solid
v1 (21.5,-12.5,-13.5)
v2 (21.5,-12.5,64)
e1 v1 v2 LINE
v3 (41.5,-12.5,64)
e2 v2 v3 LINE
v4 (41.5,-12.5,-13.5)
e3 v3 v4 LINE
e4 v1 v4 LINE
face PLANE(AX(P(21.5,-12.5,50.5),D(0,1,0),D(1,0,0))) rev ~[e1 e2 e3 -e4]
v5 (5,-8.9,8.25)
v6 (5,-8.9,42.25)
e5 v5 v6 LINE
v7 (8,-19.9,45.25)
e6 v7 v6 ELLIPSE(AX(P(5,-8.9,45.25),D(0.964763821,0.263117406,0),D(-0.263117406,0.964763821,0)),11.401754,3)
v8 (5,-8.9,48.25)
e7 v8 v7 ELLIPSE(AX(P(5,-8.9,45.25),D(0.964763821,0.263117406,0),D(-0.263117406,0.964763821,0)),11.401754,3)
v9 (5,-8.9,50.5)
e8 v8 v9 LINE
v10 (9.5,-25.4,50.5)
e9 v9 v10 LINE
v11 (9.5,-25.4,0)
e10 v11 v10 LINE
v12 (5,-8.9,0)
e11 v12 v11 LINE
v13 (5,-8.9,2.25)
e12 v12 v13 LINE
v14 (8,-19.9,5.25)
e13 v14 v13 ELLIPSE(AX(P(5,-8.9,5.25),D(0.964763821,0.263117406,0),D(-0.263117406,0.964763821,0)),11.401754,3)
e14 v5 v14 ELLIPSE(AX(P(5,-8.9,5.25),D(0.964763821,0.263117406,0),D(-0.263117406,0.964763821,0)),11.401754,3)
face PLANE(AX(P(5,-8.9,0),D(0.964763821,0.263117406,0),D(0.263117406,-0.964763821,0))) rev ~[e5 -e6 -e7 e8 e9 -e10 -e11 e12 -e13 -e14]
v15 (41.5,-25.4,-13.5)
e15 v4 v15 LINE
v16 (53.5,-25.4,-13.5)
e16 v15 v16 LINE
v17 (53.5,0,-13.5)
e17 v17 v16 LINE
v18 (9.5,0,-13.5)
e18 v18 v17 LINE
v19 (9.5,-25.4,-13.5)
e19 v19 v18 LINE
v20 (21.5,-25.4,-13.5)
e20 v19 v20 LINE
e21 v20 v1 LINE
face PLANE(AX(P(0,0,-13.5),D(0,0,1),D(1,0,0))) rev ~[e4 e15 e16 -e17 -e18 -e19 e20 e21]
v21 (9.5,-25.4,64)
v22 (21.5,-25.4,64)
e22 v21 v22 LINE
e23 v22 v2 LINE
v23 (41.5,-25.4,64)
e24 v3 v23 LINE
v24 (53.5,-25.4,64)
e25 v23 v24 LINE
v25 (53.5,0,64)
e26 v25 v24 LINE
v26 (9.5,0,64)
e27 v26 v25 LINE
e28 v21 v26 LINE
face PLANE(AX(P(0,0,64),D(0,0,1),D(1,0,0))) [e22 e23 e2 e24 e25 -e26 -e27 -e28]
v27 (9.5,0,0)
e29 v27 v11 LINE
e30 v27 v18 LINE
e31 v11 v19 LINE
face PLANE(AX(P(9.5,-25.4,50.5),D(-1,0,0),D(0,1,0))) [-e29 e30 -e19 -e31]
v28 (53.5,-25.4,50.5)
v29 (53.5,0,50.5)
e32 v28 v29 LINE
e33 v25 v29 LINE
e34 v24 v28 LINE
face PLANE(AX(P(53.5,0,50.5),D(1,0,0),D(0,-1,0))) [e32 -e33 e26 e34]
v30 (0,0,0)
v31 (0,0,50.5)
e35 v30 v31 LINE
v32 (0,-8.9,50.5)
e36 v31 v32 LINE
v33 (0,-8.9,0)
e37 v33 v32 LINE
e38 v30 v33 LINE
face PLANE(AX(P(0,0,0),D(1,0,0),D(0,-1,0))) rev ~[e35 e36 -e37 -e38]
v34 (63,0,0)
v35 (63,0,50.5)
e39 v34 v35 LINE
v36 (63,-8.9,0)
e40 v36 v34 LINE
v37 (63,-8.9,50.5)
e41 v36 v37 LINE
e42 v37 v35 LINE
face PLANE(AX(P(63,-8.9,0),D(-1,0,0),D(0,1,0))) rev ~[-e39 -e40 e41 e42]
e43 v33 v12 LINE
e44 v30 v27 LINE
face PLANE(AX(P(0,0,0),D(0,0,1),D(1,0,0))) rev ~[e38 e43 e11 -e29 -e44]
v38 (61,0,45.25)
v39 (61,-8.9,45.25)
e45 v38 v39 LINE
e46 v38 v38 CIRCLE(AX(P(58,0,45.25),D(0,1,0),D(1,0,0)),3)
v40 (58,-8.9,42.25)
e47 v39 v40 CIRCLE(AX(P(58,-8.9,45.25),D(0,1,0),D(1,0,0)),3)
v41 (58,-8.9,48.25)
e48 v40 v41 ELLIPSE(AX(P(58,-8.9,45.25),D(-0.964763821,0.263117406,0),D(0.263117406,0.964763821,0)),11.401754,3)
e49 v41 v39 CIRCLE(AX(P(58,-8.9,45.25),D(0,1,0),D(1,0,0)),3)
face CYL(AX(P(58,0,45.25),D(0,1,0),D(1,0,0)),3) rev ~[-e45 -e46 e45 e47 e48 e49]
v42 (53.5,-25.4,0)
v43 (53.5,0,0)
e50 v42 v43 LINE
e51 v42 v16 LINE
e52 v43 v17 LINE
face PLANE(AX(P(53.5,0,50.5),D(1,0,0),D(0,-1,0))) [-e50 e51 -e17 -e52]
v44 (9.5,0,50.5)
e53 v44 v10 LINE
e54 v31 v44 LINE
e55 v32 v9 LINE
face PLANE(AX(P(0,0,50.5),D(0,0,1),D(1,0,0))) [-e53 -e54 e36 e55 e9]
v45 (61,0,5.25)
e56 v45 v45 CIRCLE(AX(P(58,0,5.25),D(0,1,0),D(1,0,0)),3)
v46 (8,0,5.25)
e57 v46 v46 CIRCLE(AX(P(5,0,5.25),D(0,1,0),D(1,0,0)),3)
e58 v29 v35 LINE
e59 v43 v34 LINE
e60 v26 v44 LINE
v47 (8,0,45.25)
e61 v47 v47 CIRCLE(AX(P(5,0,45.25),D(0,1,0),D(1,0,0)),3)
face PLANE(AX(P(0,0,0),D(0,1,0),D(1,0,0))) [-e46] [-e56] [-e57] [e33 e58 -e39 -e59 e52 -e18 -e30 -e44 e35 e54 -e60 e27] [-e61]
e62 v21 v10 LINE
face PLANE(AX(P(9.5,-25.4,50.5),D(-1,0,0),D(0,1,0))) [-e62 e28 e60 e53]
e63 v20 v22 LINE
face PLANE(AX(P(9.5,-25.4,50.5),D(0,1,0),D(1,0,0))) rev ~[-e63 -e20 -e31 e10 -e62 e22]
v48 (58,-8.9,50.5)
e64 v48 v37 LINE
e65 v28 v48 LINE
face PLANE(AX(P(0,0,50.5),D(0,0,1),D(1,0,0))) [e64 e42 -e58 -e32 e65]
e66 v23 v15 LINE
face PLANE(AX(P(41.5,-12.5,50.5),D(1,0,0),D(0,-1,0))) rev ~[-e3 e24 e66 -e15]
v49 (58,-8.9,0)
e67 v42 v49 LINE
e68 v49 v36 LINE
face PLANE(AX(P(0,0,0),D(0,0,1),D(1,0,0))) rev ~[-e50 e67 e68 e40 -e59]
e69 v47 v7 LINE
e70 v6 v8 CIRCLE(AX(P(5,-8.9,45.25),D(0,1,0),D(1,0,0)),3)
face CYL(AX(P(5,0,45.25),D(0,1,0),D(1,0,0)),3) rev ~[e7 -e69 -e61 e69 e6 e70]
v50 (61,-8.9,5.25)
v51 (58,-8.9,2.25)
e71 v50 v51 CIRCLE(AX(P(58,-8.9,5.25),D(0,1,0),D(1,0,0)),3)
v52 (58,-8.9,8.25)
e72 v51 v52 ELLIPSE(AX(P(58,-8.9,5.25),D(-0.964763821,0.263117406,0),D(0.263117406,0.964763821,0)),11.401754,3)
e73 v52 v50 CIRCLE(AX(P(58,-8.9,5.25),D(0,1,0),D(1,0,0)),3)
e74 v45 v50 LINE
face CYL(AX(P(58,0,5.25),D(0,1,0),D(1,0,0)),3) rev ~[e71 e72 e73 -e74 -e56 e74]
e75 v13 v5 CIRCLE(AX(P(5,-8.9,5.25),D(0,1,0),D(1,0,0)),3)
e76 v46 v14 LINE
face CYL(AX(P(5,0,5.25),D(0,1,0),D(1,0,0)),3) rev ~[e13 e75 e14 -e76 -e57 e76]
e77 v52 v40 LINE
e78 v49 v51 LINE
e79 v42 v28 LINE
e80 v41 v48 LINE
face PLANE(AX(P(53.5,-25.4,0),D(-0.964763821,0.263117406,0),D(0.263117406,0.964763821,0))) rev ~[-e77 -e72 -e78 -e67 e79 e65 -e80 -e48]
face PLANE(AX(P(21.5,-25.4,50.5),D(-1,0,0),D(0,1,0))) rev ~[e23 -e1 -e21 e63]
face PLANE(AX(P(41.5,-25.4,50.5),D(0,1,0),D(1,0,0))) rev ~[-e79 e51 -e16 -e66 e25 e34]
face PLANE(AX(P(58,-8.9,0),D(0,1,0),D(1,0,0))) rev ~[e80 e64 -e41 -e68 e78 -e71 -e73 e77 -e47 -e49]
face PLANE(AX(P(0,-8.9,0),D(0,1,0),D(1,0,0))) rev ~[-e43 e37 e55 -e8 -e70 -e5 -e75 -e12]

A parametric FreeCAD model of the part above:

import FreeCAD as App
import Part
import Sketcher

doc = App.newDocument("Part")
body = doc.addObject("PartDesign::Body", "Body")

# Sketch on XY plane
sketch1 = doc.addObject("Sketcher::SketchObject", "Sketch")
body.addObject(sketch1)
sketch1.AttachmentSupport = (doc.XY_Plane, [""])
sketch1.MapMode = "FlatFace"
sketch1.addGeometry([
    Part.LineSegment(App.Vector(63, 0, 0), App.Vector(0, 0, 0)),  # 0
    Part.LineSegment(App.Vector(0, 0, 0), App.Vector(0, -8.9, 0)),  # 1
    Part.LineSegment(App.Vector(0, -8.9, 0), App.Vector(5, -8.9, 0)),  # 2
    Part.LineSegment(App.Vector(5, -8.9, 0), App.Vector(9.5, -25.4, 0)),  # 3
    Part.LineSegment(App.Vector(9.5, -25.4, 0), App.Vector(21.5, -25.4, 0)),  # 4
    Part.LineSegment(App.Vector(21.5, -25.4, 0), App.Vector(21.5, -12.5, 0)),  # 5
    Part.LineSegment(App.Vector(21.5, -12.5, 0), App.Vector(41.5, -12.5, 0)),  # 6
    Part.LineSegment(App.Vector(41.5, -12.5, 0), App.Vector(41.5, -25.4, 0)),  # 7
    Part.LineSegment(App.Vector(41.5, -25.4, 0), App.Vector(53.5, -25.4, 0)),  # 8
    Part.LineSegment(App.Vector(53.5, -25.4, 0), App.Vector(58, -8.9, 0)),  # 9
    Part.LineSegment(App.Vector(58, -8.9, 0), App.Vector(63, -8.9, 0)),  # 10
    Part.LineSegment(App.Vector(63, -8.9, 0), App.Vector(63, 0, 0)),  # 11
], False)
sketch1.addConstraint([
    Sketcher.Constraint("Coincident", 0, 2, 1, 1),
    Sketcher.Constraint("Coincident", 1, 2, 2, 1),
    Sketcher.Constraint("Coincident", 2, 2, 3, 1),
    Sketcher.Constraint("Coincident", 3, 2, 4, 1),
    Sketcher.Constraint("Coincident", 4, 2, 5, 1),
    Sketcher.Constraint("Coincident", 5, 2, 6, 1),
    Sketcher.Constraint("Coincident", 6, 2, 7, 1),
    Sketcher.Constraint("Coincident", 7, 2, 8, 1),
    Sketcher.Constraint("Coincident", 8, 2, 9, 1),
    Sketcher.Constraint("Coincident", 9, 2, 10, 1),
    Sketcher.Constraint("Coincident", 10, 2, 11, 1),
    Sketcher.Constraint("Coincident", 11, 2, 0, 1),
    Sketcher.Constraint("Horizontal", 0),
    Sketcher.Constraint("Vertical", 1),
    Sketcher.Constraint("Horizontal", 2),
    Sketcher.Constraint("Horizontal", 4),
    Sketcher.Constraint("Vertical", 5),
    Sketcher.Constraint("Horizontal", 6),
    Sketcher.Constraint("Vertical", 7),
    Sketcher.Constraint("Horizontal", 8),
    Sketcher.Constraint("Horizontal", 10),
    Sketcher.Constraint("Vertical", 11),
    Sketcher.Constraint("Coincident", 0, 2, -1, 1),
    Sketcher.Constraint("Horizontal", 4, 2, 7, 2),
    Sketcher.Constraint("Horizontal", 2, 2, 9, 2),
    Sketcher.Constraint("Equal", 4, 8),
    Sketcher.Constraint("Equal", 2, 10),
    Sketcher.Constraint("Equal", 3, 9),
    Sketcher.Constraint("DistanceX", 0, 2, 0, 1, 63.0),
    Sketcher.Constraint("DistanceX", 2, 1, 2, 2, 5.0),
    Sketcher.Constraint("DistanceX", 4, 1, 4, 2, 12.0),
    Sketcher.Constraint("DistanceY", 1, 2, 1, 1, 8.9),
    Sketcher.Constraint("DistanceY", 5, 1, 5, 2, 12.9),
    Sketcher.Constraint("DistanceY", 3, 2, -1, 1, 25.4),
    Sketcher.Constraint("DistanceX", -1, 1, 4, 2, 21.5),
])
pad1 = doc.addObject("PartDesign::Pad", "Pad")
body.addObject(pad1)
pad1.Profile = sketch1
pad1.Length = 50.5

# Sketch on XY plane
sketch2 = doc.addObject("Sketcher::SketchObject", "Sketch001")
body.addObject(sketch2)
sketch2.AttachmentSupport = (doc.XY_Plane, [""])
sketch2.MapMode = "FlatFace"
sketch2.AttachmentOffset = App.Placement(App.Vector(0, 0, 50.5), App.Rotation())
sketch2.addGeometry([
    Part.LineSegment(App.Vector(9.5, -25.4, 0), App.Vector(21.5, -25.4, 0)),  # 0
    Part.LineSegment(App.Vector(21.5, -25.4, 0), App.Vector(21.5, -12.5, 0)),  # 1
    Part.LineSegment(App.Vector(21.5, -12.5, 0), App.Vector(41.5, -12.5, 0)),  # 2
    Part.LineSegment(App.Vector(41.5, -12.5, 0), App.Vector(41.5, -25.4, 0)),  # 3
    Part.LineSegment(App.Vector(41.5, -25.4, 0), App.Vector(53.5, -25.4, 0)),  # 4
    Part.LineSegment(App.Vector(53.5, -25.4, 0), App.Vector(53.5, 0, 0)),  # 5
    Part.LineSegment(App.Vector(53.5, 0, 0), App.Vector(9.5, 0, 0)),  # 6
    Part.LineSegment(App.Vector(9.5, 0, 0), App.Vector(9.5, -25.4, 0)),  # 7
], False)
sketch2.addConstraint([
    Sketcher.Constraint("Coincident", 0, 2, 1, 1),
    Sketcher.Constraint("Coincident", 1, 2, 2, 1),
    Sketcher.Constraint("Coincident", 2, 2, 3, 1),
    Sketcher.Constraint("Coincident", 3, 2, 4, 1),
    Sketcher.Constraint("Coincident", 4, 2, 5, 1),
    Sketcher.Constraint("Coincident", 5, 2, 6, 1),
    Sketcher.Constraint("Coincident", 6, 2, 7, 1),
    Sketcher.Constraint("Coincident", 7, 2, 0, 1),
    Sketcher.Constraint("Horizontal", 0),
    Sketcher.Constraint("Vertical", 1),
    Sketcher.Constraint("Horizontal", 2),
    Sketcher.Constraint("Vertical", 3),
    Sketcher.Constraint("Horizontal", 4),
    Sketcher.Constraint("Vertical", 5),
    Sketcher.Constraint("Horizontal", 6),
    Sketcher.Constraint("Vertical", 7),
    Sketcher.Constraint("PointOnObject", 5, 2, -1),
    Sketcher.Constraint("Horizontal", 0, 2, 3, 2),
    Sketcher.Constraint("Equal", 0, 4),
    Sketcher.Constraint("DistanceX", 0, 1, 0, 2, 12.0),
    Sketcher.Constraint("DistanceX", 2, 1, 2, 2, 20.0),
    Sketcher.Constraint("DistanceY", 1, 1, 1, 2, 12.9),
    Sketcher.Constraint("DistanceY", 5, 1, 5, 2, 25.4),
    Sketcher.Constraint("DistanceX", -1, 1, 0, 2, 21.5),
])
pad2 = doc.addObject("PartDesign::Pad", "Pad001")
body.addObject(pad2)
pad2.Profile = sketch2
pad2.Type = "TwoLengths"
pad2.Length = 13.5
pad2.Length2 = 64

# Sketch on XZ plane
sketch3 = doc.addObject("Sketcher::SketchObject", "Sketch002")
body.addObject(sketch3)
sketch3.AttachmentSupport = (doc.XZ_Plane, [""])
sketch3.MapMode = "FlatFace"
sketch3.addGeometry([
    Part.Circle(App.Vector(5, 45.25, 0), App.Vector(0, 0, 1), 3),
    Part.Circle(App.Vector(5, 5.25, 0), App.Vector(0, 0, 1), 3),
    Part.Circle(App.Vector(58, 45.25, 0), App.Vector(0, 0, 1), 3),
    Part.Circle(App.Vector(58, 5.25, 0), App.Vector(0, 0, 1), 3),
], False)
sketch3.addConstraint([
    Sketcher.Constraint("Equal", 0, 1),
    Sketcher.Constraint("Equal", 1, 2),
    Sketcher.Constraint("Equal", 2, 3),
    Sketcher.Constraint("Horizontal", 0, 3, 2, 3),
    Sketcher.Constraint("Horizontal", 1, 3, 3, 3),
    Sketcher.Constraint("Vertical", 0, 3, 1, 3),
    Sketcher.Constraint("Vertical", 2, 3, 3, 3),
    Sketcher.Constraint("Diameter", 0, 6.0),
    Sketcher.Constraint("DistanceY", 1, 3, 0, 3, 40.0),
    Sketcher.Constraint("DistanceX", 0, 3, 2, 3, 53.0),
    Sketcher.Constraint("DistanceX", -1, 1, 0, 3, 5.0),
    Sketcher.Constraint("DistanceY", -1, 1, 0, 3, 45.25),
])
pocket1 = doc.addObject("PartDesign::Pocket", "Pocket")
body.addObject(pocket1)
pocket1.Profile = sketch3
pocket1.Length = 34.5
pocket1.Reversed = True

doc.recompute()
